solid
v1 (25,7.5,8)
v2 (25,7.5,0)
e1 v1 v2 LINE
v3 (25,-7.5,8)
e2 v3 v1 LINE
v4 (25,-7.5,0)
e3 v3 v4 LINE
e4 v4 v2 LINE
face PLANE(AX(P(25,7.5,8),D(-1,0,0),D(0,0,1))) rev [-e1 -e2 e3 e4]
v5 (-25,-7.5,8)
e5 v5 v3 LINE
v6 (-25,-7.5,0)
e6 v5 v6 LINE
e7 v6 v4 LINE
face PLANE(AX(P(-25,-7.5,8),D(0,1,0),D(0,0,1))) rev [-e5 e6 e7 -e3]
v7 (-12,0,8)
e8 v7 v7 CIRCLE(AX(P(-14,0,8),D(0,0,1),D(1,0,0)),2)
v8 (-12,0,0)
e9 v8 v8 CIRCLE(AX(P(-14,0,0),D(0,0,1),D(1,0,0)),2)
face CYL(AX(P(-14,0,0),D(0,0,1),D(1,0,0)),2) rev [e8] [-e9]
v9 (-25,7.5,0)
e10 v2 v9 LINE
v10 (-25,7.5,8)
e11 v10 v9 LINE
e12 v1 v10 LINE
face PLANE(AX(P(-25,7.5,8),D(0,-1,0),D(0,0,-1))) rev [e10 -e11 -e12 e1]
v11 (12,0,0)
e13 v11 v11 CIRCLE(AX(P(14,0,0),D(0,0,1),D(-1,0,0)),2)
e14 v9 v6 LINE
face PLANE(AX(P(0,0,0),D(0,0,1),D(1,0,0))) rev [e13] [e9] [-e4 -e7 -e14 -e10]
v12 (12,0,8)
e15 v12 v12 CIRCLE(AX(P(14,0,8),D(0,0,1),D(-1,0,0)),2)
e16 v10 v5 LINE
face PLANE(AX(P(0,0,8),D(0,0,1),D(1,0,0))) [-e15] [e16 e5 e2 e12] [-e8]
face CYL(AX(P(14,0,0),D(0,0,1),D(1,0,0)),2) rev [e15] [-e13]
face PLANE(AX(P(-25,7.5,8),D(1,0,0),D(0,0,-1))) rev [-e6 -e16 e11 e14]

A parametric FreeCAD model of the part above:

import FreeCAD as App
import Part
import Sketcher
from FreeCAD import Vector


def add_polygon(sketch, points):
    """Adds a closed chain of lines whose ends are joined by coincident constraints."""
    first, n = sketch.GeometryCount, len(points)
    for a, b in zip(points, points[1:] + points[:1]):
        sketch.addGeometry(Part.LineSegment(App.Vector(*a, 0), App.Vector(*b, 0)), False)
    for i in range(n):
        sketch.addConstraint(Sketcher.Constraint("Coincident", first + i, 2, first + (i + 1) % n, 1))

doc = App.newDocument("Part")
body = doc.addObject("PartDesign::Body", "Body")

# Sketch on XY plane
sketch1 = body.newObject("Sketcher::SketchObject", "Sketch")
sketch1.AttachmentSupport = (doc.getObject("XY_Plane"), [""])
sketch1.MapMode = "FlatFace"
add_polygon(sketch1, [(-25, 7.5), (-25, -7.5), (25, -7.5), (25, 7.5)])  # lines 0-3
sketch1.addConstraint(Sketcher.Constraint("Vertical", 0))
sketch1.addConstraint(Sketcher.Constraint("Horizontal", 1))
sketch1.addConstraint(Sketcher.Constraint("Vertical", 2))
sketch1.addConstraint(Sketcher.Constraint("Horizontal", 3))
sketch1.addConstraint(Sketcher.Constraint("Symmetric", 0, 2, 2, 2, -1, 1))
sketch1.addConstraint(Sketcher.Constraint("DistanceX", 1, 1, 1, 2, 50.0))
sketch1.addConstraint(Sketcher.Constraint("DistanceY", 0, 2, 0, 1, 15.0))
pad1 = body.newObject("PartDesign::Pad", "Pad")
pad1.Profile = sketch1
pad1.Length = 8

# Sketch on XY plane
sketch2 = body.newObject("Sketcher::SketchObject", "Sketch001")
sketch2.AttachmentSupport = (doc.getObject("XY_Plane"), [""])
sketch2.MapMode = "FlatFace"
sketch2.AttachmentOffset = App.Placement(Vector(0, 0, 8), App.Rotation())
sketch2.addGeometry(Part.Circle(Vector(-14, 0, 0), Vector(0, 0, 1), 2), False)
sketch2.addGeometry(Part.Circle(Vector(14, 0, 0), Vector(0, 0, 1), 2), False)
sketch2.addConstraint(Sketcher.Constraint("Equal", 0, 1))
sketch2.addConstraint(Sketcher.Constraint("Symmetric", 0, 3, 1, 3, -1, 1))
sketch2.addConstraint(Sketcher.Constraint("PointOnObject", 0, 3, -1))
sketch2.addConstraint(Sketcher.Constraint("Diameter", 0, 4.0))
sketch2.addConstraint(Sketcher.Constraint("DistanceX", 0, 3, -1, 1, 14.0))
pocket1 = body.newObject("PartDesign::Pocket", "Pocket")
pocket1.Profile = sketch2
pocket1.Type = "ThroughAll"

doc.recompute()
